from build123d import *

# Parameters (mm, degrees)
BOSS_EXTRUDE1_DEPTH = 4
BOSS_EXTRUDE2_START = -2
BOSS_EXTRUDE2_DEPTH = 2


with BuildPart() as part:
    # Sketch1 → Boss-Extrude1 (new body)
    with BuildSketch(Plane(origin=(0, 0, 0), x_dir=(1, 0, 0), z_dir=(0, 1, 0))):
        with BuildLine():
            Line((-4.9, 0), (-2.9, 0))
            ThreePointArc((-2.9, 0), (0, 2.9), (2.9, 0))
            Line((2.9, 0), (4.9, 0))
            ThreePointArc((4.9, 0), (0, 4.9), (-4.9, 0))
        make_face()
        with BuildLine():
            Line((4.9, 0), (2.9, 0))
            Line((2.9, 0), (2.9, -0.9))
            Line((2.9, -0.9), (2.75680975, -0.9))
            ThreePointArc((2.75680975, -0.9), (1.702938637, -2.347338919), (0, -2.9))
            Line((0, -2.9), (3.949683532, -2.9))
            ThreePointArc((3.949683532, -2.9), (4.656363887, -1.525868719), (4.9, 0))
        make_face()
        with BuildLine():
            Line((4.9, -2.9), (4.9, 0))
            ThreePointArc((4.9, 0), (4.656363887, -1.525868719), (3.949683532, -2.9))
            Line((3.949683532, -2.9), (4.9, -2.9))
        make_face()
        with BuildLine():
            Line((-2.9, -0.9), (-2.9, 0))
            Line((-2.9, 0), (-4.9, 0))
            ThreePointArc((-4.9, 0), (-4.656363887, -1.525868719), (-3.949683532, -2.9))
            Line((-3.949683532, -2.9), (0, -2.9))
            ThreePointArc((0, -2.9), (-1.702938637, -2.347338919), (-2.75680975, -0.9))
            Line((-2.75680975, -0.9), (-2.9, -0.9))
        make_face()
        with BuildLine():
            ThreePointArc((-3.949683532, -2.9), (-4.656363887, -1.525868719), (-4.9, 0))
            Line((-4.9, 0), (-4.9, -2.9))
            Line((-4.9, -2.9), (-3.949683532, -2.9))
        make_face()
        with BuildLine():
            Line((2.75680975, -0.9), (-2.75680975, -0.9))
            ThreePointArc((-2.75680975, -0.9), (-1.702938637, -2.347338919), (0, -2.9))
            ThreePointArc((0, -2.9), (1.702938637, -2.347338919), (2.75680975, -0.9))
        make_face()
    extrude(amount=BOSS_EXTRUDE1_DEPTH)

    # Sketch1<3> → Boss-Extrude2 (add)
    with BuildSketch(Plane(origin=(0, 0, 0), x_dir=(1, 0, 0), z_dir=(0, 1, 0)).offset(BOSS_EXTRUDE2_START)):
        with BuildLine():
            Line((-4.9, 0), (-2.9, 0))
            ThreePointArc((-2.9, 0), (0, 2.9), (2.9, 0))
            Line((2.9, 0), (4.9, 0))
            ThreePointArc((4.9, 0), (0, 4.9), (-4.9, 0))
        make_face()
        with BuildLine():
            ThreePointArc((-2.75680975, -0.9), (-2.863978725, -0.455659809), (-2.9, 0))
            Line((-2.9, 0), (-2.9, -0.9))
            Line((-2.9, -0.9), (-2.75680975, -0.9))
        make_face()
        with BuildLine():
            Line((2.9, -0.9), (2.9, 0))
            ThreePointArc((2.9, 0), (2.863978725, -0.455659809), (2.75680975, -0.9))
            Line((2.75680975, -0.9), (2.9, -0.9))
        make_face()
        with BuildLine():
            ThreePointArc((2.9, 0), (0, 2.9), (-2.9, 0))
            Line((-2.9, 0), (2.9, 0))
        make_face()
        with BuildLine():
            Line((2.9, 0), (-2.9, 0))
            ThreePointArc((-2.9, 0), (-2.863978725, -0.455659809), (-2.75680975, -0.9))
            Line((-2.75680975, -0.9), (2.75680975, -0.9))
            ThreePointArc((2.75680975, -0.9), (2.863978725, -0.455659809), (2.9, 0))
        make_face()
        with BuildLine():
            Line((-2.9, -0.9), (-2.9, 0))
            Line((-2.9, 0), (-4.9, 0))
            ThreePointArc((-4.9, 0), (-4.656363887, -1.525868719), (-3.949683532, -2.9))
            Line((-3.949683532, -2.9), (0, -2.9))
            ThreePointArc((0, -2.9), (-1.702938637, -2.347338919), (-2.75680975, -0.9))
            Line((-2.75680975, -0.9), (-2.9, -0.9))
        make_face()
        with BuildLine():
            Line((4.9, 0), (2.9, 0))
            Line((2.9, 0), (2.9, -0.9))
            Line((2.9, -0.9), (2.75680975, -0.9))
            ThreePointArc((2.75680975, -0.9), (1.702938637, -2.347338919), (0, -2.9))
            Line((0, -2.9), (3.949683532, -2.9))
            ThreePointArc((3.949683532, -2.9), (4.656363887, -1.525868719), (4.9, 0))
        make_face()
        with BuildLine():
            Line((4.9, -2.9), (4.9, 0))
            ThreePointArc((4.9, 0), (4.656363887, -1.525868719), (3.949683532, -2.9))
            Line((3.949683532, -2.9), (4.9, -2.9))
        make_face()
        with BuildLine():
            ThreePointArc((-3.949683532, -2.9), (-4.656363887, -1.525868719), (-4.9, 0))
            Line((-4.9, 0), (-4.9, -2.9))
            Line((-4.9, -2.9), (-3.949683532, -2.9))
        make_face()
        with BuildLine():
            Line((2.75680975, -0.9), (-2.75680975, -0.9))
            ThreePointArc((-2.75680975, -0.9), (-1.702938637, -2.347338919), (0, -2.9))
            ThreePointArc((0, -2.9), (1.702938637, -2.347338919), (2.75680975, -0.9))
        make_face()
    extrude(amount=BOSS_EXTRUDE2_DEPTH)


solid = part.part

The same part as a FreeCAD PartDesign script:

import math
import FreeCAD as App
import Part
import Sketcher

V = App.Vector

doc = App.newDocument("Part")
body = doc.addObject("PartDesign::Body", "Body")

# Sketch on XZ plane
sketch1 = body.newObject("Sketcher::SketchObject", "Sketch")
sketch1.AttachmentSupport = (doc.getObject("XZ_Plane"), [""])
sketch1.MapMode = "FlatFace"
sketch1.addGeometry([
    Part.LineSegment(V(-4.9, 2.9, 0), V(4.9, 2.9, 0)),  # 0
    Part.LineSegment(V(4.9, 2.9, 0), V(4.9, 0, 0)),  # 1
    Part.ArcOfCircle(Part.Circle(V(0, 0, 0), V(0, 0, 1), 4.9), math.radians(180), math.radians(360)),  # 2
    Part.LineSegment(V(-4.9, 0, 0), V(-4.9, 2.9, 0)),  # 3
    Part.LineSegment(V(2.9, 0.9, 0), V(-2.9, 0.9, 0)),  # 4
    Part.LineSegment(V(-2.9, 0.9, 0), V(-2.9, 0, 0)),  # 5
    Part.ArcOfCircle(Part.Circle(V(0, 0, 0), V(0, 0, 1), 2.9), math.radians(180), math.radians(360)),  # 6
    Part.LineSegment(V(2.9, 0, 0), V(2.9, 0.9, 0)),  # 7
], False)
sketch1.addConstraint([
    Sketcher.Constraint("Coincident", 0, 2, 1, 1),
    Sketcher.Constraint("Tangent", 1, 2, 2, 2),
    Sketcher.Constraint("Tangent", 2, 1, 3, 1),
    Sketcher.Constraint("Coincident", 3, 2, 0, 1),
    Sketcher.Constraint("Coincident", 4, 2, 5, 1),
    Sketcher.Constraint("Tangent", 5, 2, 6, 1),
    Sketcher.Constraint("Tangent", 6, 2, 7, 1),
    Sketcher.Constraint("Coincident", 7, 2, 4, 1),
    Sketcher.Constraint("Horizontal", 0),
    Sketcher.Constraint("Vertical", 1),
    Sketcher.Constraint("Vertical", 3),
    Sketcher.Constraint("Horizontal", 4),
    Sketcher.Constraint("Vertical", 5),
    Sketcher.Constraint("Vertical", 7),
    Sketcher.Constraint("Coincident", 2, 3, -1, 1),
    Sketcher.Constraint("Coincident", 6, 3, -1, 1),
    Sketcher.Constraint("Radius", 2, 4.9),
    Sketcher.Constraint("Radius", 6, 2.9),
    Sketcher.Constraint("DistanceY", 1, 2, 1, 1, 2.9),
    Sketcher.Constraint("DistanceY", 5, 2, 5, 1, 0.9),
])
pad1 = body.newObject("PartDesign::Pad", "Pad")
pad1.Profile = sketch1
pad1.Length = 4
pad1.Reversed = True

# Sketch on XZ plane
sketch2 = body.newObject("Sketcher::SketchObject", "Sketch001")
sketch2.AttachmentSupport = (doc.getObject("XZ_Plane"), [""])
sketch2.MapMode = "FlatFace"
sketch2.AttachmentOffset = App.Placement(V(0, 0, 2), App.Rotation())
sketch2.addGeometry([
    Part.LineSegment(V(-4.9, 2.9, 0), V(4.9, 2.9, 0)),
    Part.LineSegment(V(4.9, 2.9, 0), V(4.9, 0, 0)),
    Part.ArcOfCircle(Part.Circle(V(0, 0, 0), V(0, 0, 1), 4.9), math.radians(180), math.radians(360)),
    Part.LineSegment(V(-4.9, 0, 0), V(-4.9, 2.9, 0)),
], False)
sketch2.addConstraint([
    Sketcher.Constraint("Coincident", 0, 2, 1, 1),
    Sketcher.Constraint("Tangent", 1, 2, 2, 2),
    Sketcher.Constraint("Tangent", 2, 1, 3, 1),
    Sketcher.Constraint("Coincident", 3, 2, 0, 1),
    Sketcher.Constraint("Horizontal", 0),
    Sketcher.Constraint("Vertical", 1),
    Sketcher.Constraint("Vertical", 3),
    Sketcher.Constraint("Coincident", 2, 3, -1, 1),
    Sketcher.Constraint("Radius", 2, 4.9),
    Sketcher.Constraint("DistanceY", 1, 2, 1, 1, 2.9),
])
pad2 = body.newObject("PartDesign::Pad", "Pad001")
pad2.Profile = sketch2
pad2.Length = 2
pad2.Reversed = True

doc.recompute()
